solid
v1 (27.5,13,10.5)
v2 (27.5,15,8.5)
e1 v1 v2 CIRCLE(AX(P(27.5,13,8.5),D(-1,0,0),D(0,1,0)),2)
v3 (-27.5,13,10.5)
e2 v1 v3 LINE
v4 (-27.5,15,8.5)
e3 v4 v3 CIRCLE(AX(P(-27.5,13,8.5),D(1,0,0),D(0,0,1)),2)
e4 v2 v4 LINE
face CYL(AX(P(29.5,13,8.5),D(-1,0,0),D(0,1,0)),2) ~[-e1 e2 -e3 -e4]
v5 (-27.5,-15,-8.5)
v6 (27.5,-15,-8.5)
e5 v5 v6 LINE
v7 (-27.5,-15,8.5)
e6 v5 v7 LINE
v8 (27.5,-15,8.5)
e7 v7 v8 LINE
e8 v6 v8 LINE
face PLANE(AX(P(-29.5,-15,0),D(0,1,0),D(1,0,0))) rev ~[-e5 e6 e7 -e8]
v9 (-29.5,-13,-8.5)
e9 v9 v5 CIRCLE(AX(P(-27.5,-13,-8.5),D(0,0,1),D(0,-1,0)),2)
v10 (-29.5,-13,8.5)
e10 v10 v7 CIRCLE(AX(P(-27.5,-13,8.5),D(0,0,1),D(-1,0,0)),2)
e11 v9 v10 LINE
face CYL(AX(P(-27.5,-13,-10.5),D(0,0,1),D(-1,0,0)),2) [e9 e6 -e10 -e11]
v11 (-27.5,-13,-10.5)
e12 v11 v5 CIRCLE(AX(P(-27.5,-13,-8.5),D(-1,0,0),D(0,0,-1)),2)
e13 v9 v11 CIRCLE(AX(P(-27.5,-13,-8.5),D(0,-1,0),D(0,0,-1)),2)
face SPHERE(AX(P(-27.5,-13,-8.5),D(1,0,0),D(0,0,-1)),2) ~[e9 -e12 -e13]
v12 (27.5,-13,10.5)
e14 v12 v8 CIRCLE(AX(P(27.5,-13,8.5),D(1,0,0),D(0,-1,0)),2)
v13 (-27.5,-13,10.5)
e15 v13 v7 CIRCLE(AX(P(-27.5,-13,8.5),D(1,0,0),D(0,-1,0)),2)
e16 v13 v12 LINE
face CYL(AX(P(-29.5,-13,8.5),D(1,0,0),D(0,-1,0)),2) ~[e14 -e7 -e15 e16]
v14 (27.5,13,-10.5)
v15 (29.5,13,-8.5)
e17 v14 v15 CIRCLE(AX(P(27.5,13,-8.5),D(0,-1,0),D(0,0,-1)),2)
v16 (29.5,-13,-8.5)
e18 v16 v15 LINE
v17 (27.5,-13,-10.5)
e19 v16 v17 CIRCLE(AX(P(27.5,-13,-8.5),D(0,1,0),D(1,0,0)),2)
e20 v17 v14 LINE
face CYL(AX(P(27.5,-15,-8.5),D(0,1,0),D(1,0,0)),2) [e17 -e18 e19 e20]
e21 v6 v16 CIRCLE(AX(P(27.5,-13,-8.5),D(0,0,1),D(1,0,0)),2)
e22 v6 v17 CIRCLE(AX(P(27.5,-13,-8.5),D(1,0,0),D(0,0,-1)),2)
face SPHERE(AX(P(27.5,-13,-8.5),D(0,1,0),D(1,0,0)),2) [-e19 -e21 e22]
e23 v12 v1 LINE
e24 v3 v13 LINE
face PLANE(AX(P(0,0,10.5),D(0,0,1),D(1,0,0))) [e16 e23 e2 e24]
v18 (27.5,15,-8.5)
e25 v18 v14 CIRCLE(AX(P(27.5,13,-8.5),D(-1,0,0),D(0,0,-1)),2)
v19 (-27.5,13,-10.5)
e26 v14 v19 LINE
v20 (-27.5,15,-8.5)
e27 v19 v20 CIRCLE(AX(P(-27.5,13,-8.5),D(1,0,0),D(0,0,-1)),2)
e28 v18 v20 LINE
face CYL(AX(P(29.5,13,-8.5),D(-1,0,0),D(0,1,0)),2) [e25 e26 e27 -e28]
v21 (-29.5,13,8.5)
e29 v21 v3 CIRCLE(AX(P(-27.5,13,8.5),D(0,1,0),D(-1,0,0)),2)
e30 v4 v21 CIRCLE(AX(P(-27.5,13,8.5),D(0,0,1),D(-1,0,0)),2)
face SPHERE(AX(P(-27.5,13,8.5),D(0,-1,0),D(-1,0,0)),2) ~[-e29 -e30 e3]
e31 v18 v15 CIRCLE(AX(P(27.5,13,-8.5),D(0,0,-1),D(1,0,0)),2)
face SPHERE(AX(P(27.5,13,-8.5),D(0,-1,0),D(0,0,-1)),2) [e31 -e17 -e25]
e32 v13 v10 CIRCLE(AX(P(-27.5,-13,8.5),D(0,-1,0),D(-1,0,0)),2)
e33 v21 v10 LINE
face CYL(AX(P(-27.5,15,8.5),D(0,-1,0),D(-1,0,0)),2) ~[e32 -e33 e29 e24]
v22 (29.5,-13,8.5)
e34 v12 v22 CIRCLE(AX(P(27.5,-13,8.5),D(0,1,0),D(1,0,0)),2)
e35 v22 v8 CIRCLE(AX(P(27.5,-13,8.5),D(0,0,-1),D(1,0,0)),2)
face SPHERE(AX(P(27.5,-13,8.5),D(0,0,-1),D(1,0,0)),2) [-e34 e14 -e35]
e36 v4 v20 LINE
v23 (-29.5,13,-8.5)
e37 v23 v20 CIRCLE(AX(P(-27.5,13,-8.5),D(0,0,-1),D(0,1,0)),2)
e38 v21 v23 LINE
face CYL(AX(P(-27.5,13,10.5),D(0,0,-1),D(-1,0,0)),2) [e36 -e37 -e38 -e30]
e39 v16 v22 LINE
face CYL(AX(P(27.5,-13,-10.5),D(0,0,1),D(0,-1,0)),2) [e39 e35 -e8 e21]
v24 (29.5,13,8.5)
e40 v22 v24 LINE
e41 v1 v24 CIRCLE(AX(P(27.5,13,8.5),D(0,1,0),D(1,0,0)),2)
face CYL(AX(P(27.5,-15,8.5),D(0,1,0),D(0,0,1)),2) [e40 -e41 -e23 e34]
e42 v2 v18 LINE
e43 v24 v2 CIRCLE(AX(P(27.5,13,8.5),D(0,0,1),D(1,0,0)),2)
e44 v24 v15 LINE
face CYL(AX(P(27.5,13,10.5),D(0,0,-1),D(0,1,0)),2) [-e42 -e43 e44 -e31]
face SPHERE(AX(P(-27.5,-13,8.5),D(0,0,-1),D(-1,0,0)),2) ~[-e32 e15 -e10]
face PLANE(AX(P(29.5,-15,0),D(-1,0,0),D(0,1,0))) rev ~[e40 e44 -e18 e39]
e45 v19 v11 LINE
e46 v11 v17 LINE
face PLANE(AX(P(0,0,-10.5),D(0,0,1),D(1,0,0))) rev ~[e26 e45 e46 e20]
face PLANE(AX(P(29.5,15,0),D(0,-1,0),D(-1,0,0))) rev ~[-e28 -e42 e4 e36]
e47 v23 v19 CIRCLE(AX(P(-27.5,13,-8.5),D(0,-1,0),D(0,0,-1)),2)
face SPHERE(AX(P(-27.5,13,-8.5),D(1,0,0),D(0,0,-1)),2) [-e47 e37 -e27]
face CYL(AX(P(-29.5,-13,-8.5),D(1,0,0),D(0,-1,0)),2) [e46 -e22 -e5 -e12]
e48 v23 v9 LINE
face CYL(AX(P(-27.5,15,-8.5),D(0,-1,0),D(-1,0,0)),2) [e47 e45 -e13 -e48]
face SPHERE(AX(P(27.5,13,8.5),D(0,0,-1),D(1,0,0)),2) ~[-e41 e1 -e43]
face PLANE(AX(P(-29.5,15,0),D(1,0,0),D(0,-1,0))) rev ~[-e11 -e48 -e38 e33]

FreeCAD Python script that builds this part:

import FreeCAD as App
import Part
import Sketcher
from FreeCAD import Vector


def add_polygon(sketch, points):
    """Adds a closed chain of lines whose ends are joined by coincident constraints."""
    first, n = sketch.GeometryCount, len(points)
    for a, b in zip(points, points[1:] + points[:1]):
        sketch.addGeometry(Part.LineSegment(App.Vector(*a, 0), App.Vector(*b, 0)), False)
    for i in range(n):
        sketch.addConstraint(Sketcher.Constraint("Coincident", first + i, 2, first + (i + 1) % n, 1))

doc = App.newDocument("Part")
body = doc.addObject("PartDesign::Body", "Body")

# Sketch on XY plane
sketch1 = body.newObject("Sketcher::SketchObject", "Sketch")
sketch1.AttachmentSupport = (doc.getObject("XY_Plane"), [""])
sketch1.MapMode = "FlatFace"
add_polygon(sketch1, [(-30, 15), (-30, -15), (30, -15), (30, 15)])  # lines 0-3
sketch1.addConstraint([
    Sketcher.Constraint("Vertical", 0),
    Sketcher.Constraint("Horizontal", 1),
    Sketcher.Constraint("Vertical", 2),
    Sketcher.Constraint("Horizontal", 3),
    Sketcher.Constraint("Symmetric", 0, 2, 2, 2, -1, 1),
    Sketcher.Constraint("DistanceX", 1, 1, 1, 2, 59.0),
    Sketcher.Constraint("DistanceY", 0, 2, 0, 1, 30.0),
])
pad1 = body.newObject("PartDesign::Pad", "Pad")
pad1.Profile = sketch1
pad1.Length = 21
pad1.Midplane = True
doc.recompute()

fillet = body.newObject("PartDesign::Fillet", "Fillet")
fillet.Base = (pad1, ["Edge1"])
fillet.UseAllEdges = True
fillet.Radius = 2

doc.recompute()
